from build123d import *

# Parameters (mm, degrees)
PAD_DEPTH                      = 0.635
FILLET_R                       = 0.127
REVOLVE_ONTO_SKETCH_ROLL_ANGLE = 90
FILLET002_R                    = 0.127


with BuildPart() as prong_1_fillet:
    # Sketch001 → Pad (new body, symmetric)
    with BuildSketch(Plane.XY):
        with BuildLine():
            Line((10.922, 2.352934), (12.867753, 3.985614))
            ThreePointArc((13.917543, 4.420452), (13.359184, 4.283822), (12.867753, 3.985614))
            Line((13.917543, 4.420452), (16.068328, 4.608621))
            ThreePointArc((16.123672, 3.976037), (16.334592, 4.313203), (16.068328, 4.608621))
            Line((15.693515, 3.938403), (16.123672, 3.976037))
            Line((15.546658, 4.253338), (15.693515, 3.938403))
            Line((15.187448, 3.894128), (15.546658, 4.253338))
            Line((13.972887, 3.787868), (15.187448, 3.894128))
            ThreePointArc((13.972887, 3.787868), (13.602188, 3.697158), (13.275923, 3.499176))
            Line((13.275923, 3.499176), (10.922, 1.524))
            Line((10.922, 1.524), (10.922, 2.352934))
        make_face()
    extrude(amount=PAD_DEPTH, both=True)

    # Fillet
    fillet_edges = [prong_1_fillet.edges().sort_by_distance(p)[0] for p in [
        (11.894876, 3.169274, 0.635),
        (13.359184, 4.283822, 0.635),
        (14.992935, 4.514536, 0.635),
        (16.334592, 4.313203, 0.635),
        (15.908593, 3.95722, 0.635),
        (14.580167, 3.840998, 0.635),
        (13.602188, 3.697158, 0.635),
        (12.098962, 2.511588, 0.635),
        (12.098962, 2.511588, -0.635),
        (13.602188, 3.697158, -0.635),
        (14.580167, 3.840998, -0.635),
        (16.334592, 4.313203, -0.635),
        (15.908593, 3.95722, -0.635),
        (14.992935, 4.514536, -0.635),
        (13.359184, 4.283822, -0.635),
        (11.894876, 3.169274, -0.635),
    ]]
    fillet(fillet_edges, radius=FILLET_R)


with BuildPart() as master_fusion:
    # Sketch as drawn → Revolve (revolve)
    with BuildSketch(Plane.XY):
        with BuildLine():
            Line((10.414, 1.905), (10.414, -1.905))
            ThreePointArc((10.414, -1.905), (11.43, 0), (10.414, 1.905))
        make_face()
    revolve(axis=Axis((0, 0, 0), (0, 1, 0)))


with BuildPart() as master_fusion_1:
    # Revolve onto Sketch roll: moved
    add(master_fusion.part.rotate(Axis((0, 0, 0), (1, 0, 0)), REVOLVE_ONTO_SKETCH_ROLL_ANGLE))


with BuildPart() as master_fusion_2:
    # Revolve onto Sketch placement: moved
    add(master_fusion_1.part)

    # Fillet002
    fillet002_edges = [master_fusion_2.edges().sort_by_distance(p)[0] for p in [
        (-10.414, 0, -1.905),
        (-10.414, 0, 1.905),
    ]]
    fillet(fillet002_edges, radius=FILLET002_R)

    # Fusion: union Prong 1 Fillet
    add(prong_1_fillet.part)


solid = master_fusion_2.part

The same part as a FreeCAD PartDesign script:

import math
import FreeCAD as App
import Part
import Sketcher

V = App.Vector
Q = App.Units.Quantity


def edges_at(feature, points):
    """Names of the edges that pass closest to the given points."""
    edges = feature.Shape.Edges
    near = lambda p: min(range(len(edges)), key=lambda i: edges[i].distToShape(Part.Vertex(*p))[0])
    return sorted({f"Edge{near(p) + 1}" for p in points})

doc = App.newDocument("Part")
body = doc.addObject("PartDesign::Body", "Body")

sketch1 = doc.addObject("Sketcher::SketchObject", "Sketch")
body.addObject(sketch1)
sketch1.AttachmentSupport = (doc.XY_Plane, [""])
sketch1.MapMode = "FlatFace"
sketch1.addGeometry([
    Part.LineSegment(V(12.867753, 3.985614, 0), V(10.922, 2.352934, 0)),
    Part.LineSegment(V(10.922, 2.352934, 0), V(10.922, 1.524, 0)),
    Part.LineSegment(V(10.922, 1.524, 0), V(13.275923, 3.499176, 0)),
    Part.ArcOfCircle(Part.Circle(V(14.082216, 2.538269, 0), V(0, 0, 1), 1.254372), math.radians(95.000141), math.radians(129.999867)),
    Part.LineSegment(V(13.972887, 3.787868, 0), V(15.187448, 3.894128, 0)),
    Part.LineSegment(V(15.187448, 3.894128, 0), V(15.546658, 4.253338, 0)),
    Part.LineSegment(V(15.546658, 4.253338, 0), V(15.693515, 3.938403, 0)),
    Part.LineSegment(V(15.693515, 3.938403, 0), V(16.123672, 3.976037, 0)),
    Part.ArcOfCircle(Part.Circle(V(16.005648, 4.284424, 0), V(0, 0, 1), 0.3302), math.radians(-69.057481), math.radians(79.057494)),
    Part.LineSegment(V(16.068328, 4.608621, 0), V(13.917543, 4.420452, 0)),
    Part.ArcOfCircle(Part.Circle(V(14.082213, 2.538278, 0), V(0, 0, 1), 1.889364), math.radians(95.000046), math.radians(130.000024)),
], False)
sketch1.addConstraint([
    Sketcher.Constraint("Coincident", 0, 2, 1, 1),
    Sketcher.Constraint("Coincident", 1, 2, 2, 1),
    Sketcher.Constraint("Coincident", 2, 2, 3, 2),
    Sketcher.Constraint("Coincident", 3, 1, 4, 1),
    Sketcher.Constraint("Coincident", 4, 2, 5, 1),
    Sketcher.Constraint("Coincident", 5, 2, 6, 1),
    Sketcher.Constraint("Coincident", 6, 2, 7, 1),
    Sketcher.Constraint("Coincident", 7, 2, 8, 1),
    Sketcher.Constraint("Coincident", 8, 2, 9, 1),
    Sketcher.Constraint("Tangent", 9, 2, 10, 1),
    Sketcher.Constraint("Tangent", 10, 2, 0, 1),
    Sketcher.Constraint("Vertical", 1),
    Sketcher.Constraint("Coincident", 10, 3, 3, 3),
    Sketcher.Constraint("Parallel", 0, 2),
    Sketcher.Constraint("Parallel", 4, 7),
    Sketcher.Constraint("Parallel", 7, 9),
    Sketcher.Constraint("Angle", 0, Q("-140.000011 deg")),
    Sketcher.Constraint("Angle", 4, Q("4.999985 deg")),
    Sketcher.Constraint("Angle", 5, Q("45 deg")),
    Sketcher.Constraint("Radius", 8, Q("0.013 in")),
    Sketcher.Constraint("Distance", 0, Q("0.1 in")),
    Sketcher.Constraint("Distance", 5, Q("0.02 in")),
    Sketcher.Constraint("DistanceX", -1, 1, 0, 2, Q("0.43 in")),
    Sketcher.Constraint("DistanceY", -1, 1, 1, 2, Q("0.06 in")),
    Sketcher.Constraint("Distance", 4, Q("0.048 in")),
    Sketcher.Constraint("Distance", 7, Q("0.017 in")),
    Sketcher.Constraint("Distance", 9, Q("0.085 in")),
    Sketcher.Constraint("Radius", 3, 1.254372),
    Sketcher.Constraint("Radius", 10, 1.889364),
    Sketcher.Constraint("DistanceY", 10, 3, 2, 2, 0.960898),
    Sketcher.Constraint("DistanceY", 3, 3, 3, 1, 1.249599),
    Sketcher.Constraint("DistanceX", 4, 2, 8, 3, 0.8182),
    Sketcher.Constraint("DistanceX", 10, 3, 6, 2, 1.611302),
])
pad1 = doc.addObject("PartDesign::Pad", "Pad")
body.addObject(pad1)
pad1.Profile = sketch1
pad1.Length = Q("0.05 in")
pad1.Midplane = True
doc.recompute()

fillet = doc.addObject("PartDesign::Fillet", "Fillet")
body.addObject(fillet)
fillet.Base = (pad1, edges_at(pad1, [
    (11.895, 3.169, 0.635),
    (13.359, 4.284, 0.635),
    (14.993, 4.515, 0.635),
    (16.335, 4.313, 0.635),
    (15.909, 3.957, 0.635),
    (14.58, 3.841, 0.635),
    (13.602, 3.697, 0.635),
    (12.099, 2.512, 0.635),
    (12.099, 2.512, -0.635),
    (13.602, 3.697, -0.635),
    (14.58, 3.841, -0.635),
    (16.335, 4.313, -0.635),
    (15.909, 3.957, -0.635),
    (14.993, 4.515, -0.635),
    (13.359, 4.284, -0.635),
    (11.895, 3.169, -0.635),
]))
fillet.Radius = Q("0.005 in")
body2 = doc.addObject("PartDesign::Body", "Body001")

sketch2 = doc.addObject("Sketcher::SketchObject", "Sketch001")
body2.addObject(sketch2)
sketch2.AttachmentSupport = (doc.getObject("XY_Plane001"), [""])
sketch2.MapMode = "FlatFace"
sketch2.addGeometry([
    Part.LineSegment(V(10.414, 1.905, 0), V(10.414, -1.905, 0)),
    Part.ArcOfCircle(Part.Circle(V(9.136062, 0, 0), V(0, 0, 1), 2.293938), math.radians(-56.144974), math.radians(56.144974)),
], False)
sketch2.addConstraint([
    Sketcher.Constraint("Coincident", 0, 1, 1, 2),
    Sketcher.Constraint("Coincident", 1, 1, 0, 2),
    Sketcher.Constraint("Vertical", 0),
    Sketcher.Constraint("PointOnObject", 1, 3, -1),
    Sketcher.Constraint("DistanceY", 0, 2, 0, 1, Q("0.15 in")),
    Sketcher.Constraint("DistanceX", -1, 1, 0, 1, Q("0.41 in")),
    Sketcher.Constraint("Radius", 1, 2.293938),
])
revolution = doc.addObject("PartDesign::Revolution", "Revolution")
body2.addObject(revolution)
revolution.Profile = sketch2
revolution.ReferenceAxis = (sketch2, ["V_Axis"])
revolution.Angle = 360
body3 = doc.addObject("PartDesign::Body", "Body002")
doc.recompute()

body2.Placement = App.Placement(V(0, 0, 0), App.Rotation(V(1, 0, 0), 90))
boolean = doc.addObject("PartDesign::Boolean", "Boolean")
body3.addObject(boolean)
boolean.Type = "Fuse"
boolean.addObjects([body2])
doc.recompute()

fillet2 = doc.addObject("PartDesign::Fillet", "Fillet001")
body3.addObject(fillet2)
fillet2.Base = (boolean, edges_at(boolean, [(-10.414, 0, -1.905), (-10.414, 0, 1.905)]))
fillet2.Radius = Q("0.005 in")
doc.recompute()

boolean2 = doc.addObject("PartDesign::Boolean", "Boolean001")
body3.addObject(boolean2)
boolean2.Type = "Fuse"
boolean2.addObjects([body])

doc.recompute()
